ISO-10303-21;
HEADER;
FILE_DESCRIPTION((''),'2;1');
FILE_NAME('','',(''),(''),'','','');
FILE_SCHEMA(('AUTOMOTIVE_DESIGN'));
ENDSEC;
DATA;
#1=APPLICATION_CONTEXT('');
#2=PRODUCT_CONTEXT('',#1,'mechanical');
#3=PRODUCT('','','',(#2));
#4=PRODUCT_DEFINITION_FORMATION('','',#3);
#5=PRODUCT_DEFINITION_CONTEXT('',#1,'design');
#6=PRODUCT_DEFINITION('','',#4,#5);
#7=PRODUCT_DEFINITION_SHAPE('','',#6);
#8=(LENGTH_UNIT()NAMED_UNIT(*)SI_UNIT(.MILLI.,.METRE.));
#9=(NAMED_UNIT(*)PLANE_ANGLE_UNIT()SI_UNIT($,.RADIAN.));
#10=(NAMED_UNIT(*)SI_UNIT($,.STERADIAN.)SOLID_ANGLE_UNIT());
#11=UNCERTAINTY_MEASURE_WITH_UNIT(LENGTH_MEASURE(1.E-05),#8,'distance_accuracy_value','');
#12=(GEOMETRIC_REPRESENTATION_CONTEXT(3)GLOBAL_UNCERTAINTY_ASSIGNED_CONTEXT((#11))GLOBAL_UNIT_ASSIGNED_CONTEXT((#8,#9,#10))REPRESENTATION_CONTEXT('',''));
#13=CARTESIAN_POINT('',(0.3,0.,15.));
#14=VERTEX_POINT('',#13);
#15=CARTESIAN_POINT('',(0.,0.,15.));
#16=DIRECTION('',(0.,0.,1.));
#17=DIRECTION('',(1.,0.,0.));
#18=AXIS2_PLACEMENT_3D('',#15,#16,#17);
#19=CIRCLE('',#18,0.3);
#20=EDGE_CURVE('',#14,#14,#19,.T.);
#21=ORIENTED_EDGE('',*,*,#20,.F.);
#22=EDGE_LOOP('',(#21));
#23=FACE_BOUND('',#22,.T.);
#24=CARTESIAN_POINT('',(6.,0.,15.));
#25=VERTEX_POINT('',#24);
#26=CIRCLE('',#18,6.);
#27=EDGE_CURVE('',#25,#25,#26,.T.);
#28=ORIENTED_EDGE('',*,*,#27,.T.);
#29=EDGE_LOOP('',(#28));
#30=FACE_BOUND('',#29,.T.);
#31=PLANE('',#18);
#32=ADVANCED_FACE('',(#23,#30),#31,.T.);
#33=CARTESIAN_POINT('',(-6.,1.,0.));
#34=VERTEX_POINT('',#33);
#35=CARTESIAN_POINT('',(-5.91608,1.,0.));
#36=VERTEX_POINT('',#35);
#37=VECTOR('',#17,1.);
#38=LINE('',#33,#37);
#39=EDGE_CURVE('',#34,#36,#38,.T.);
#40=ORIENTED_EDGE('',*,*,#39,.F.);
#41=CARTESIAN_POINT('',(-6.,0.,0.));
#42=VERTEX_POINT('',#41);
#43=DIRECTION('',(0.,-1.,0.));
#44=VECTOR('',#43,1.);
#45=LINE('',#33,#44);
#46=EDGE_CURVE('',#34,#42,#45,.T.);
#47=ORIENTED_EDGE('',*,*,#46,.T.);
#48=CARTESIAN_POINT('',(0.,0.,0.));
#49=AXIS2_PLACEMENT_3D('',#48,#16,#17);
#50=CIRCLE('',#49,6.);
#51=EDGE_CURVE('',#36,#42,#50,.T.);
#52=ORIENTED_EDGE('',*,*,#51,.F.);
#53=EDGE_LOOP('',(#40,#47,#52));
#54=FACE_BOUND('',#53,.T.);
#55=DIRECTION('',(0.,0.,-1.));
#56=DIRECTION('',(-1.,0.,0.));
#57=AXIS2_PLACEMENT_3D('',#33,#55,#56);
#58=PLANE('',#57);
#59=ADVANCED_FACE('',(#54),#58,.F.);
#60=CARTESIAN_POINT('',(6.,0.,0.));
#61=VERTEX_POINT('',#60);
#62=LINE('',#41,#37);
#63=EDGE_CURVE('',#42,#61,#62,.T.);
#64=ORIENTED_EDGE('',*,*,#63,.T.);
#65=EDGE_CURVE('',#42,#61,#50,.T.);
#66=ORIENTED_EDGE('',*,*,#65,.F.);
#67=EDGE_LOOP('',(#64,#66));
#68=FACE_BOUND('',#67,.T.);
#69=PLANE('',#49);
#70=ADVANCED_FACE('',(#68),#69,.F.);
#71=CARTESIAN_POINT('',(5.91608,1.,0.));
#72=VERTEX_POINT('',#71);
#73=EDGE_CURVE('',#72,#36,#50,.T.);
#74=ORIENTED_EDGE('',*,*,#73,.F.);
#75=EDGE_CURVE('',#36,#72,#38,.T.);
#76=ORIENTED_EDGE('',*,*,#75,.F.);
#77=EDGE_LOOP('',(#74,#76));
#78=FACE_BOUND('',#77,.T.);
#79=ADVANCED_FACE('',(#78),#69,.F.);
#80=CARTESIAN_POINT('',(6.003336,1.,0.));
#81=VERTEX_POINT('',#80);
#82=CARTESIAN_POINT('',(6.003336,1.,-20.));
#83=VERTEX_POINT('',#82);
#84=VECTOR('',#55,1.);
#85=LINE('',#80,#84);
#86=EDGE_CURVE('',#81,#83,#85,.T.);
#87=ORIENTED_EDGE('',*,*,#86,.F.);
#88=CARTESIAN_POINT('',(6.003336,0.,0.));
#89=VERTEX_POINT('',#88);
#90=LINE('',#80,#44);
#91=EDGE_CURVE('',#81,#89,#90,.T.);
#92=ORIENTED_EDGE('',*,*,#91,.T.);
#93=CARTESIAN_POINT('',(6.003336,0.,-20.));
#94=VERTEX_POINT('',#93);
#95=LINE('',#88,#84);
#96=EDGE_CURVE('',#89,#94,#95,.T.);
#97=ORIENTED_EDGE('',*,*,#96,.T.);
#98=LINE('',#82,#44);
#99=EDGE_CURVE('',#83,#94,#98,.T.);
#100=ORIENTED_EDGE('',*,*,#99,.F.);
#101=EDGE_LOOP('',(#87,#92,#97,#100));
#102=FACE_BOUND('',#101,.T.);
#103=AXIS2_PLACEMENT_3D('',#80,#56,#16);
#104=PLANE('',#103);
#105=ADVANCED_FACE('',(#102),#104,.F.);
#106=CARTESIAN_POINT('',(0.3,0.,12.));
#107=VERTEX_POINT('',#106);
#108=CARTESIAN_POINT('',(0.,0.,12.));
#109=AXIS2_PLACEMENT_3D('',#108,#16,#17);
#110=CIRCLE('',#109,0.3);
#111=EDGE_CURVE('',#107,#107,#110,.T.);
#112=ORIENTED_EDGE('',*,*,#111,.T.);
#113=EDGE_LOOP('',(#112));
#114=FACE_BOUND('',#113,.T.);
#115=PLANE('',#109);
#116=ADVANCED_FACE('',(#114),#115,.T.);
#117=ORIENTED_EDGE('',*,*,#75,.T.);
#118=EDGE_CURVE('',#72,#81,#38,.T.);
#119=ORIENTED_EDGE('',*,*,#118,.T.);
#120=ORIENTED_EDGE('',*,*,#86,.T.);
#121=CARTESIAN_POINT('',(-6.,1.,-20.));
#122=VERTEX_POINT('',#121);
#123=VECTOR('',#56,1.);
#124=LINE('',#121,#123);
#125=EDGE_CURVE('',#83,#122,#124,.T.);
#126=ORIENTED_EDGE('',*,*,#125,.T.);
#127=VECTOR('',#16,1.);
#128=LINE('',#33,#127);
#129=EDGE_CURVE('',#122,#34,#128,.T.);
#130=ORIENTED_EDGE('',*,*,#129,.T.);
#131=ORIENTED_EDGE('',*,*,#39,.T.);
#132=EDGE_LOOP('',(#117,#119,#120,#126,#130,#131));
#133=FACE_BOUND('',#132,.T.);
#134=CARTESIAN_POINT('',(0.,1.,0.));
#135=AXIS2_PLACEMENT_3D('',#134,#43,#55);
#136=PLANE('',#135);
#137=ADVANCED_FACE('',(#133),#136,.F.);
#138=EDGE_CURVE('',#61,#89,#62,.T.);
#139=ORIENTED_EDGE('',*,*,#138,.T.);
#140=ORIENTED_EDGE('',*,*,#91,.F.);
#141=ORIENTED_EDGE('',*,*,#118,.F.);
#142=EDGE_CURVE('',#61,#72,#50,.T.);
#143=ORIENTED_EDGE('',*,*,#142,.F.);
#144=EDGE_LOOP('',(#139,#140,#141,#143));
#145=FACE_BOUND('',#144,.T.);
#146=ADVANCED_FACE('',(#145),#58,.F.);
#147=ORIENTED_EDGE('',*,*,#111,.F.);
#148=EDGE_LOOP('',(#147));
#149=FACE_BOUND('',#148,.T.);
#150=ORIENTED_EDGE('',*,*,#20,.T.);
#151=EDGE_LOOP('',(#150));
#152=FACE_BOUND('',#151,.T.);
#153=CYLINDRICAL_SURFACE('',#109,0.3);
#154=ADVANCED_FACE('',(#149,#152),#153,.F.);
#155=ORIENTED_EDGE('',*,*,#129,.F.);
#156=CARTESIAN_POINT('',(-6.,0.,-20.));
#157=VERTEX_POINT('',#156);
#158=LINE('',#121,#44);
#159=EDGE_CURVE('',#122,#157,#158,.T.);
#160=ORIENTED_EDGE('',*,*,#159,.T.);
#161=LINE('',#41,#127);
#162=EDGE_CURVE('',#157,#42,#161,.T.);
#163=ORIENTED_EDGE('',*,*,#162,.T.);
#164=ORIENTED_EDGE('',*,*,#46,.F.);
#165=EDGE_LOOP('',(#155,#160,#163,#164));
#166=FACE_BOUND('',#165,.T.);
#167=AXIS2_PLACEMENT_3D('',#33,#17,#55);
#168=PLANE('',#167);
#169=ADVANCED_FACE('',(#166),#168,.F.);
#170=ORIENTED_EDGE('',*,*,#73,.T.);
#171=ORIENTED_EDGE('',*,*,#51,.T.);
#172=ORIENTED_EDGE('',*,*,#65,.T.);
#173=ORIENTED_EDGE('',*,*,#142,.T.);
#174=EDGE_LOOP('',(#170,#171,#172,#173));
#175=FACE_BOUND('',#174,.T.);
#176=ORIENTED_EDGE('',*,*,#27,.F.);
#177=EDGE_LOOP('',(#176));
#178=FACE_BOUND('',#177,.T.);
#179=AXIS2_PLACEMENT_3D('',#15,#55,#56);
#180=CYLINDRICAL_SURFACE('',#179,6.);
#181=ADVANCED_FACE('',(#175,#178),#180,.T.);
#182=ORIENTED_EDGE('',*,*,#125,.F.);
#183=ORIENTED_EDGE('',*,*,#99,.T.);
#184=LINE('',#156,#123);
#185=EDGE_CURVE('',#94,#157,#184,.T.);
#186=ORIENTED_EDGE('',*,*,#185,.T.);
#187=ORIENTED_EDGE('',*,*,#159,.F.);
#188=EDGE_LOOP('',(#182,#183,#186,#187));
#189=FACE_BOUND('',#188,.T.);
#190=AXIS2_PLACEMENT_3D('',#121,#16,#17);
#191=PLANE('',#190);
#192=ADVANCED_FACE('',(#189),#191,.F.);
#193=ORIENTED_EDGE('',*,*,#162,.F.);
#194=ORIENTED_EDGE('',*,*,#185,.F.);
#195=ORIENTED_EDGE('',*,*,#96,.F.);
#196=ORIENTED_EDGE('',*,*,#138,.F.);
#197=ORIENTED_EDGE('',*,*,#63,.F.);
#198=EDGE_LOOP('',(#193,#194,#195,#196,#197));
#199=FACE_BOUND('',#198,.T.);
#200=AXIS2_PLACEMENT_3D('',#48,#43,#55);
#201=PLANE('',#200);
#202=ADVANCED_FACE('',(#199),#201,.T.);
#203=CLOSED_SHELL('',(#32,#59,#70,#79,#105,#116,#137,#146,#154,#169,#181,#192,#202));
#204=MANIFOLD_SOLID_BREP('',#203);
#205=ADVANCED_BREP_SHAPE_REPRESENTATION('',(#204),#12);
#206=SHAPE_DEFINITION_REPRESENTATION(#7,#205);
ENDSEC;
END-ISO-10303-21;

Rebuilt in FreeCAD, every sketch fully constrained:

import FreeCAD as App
import Part
import Sketcher
from FreeCAD import Vector


def add_polygon(sketch, points):
    """Adds a closed chain of lines whose ends are joined by coincident constraints."""
    first, n = sketch.GeometryCount, len(points)
    for a, b in zip(points, points[1:] + points[:1]):
        sketch.addGeometry(Part.LineSegment(App.Vector(*a, 0), App.Vector(*b, 0)), False)
    for i in range(n):
        sketch.addConstraint(Sketcher.Constraint("Coincident", first + i, 2, first + (i + 1) % n, 1))

doc = App.newDocument("Part")
params = doc.addObject("Spreadsheet::Sheet", "Params")
for row, (alias, value) in enumerate([
    ("sketch1_diameter", "12 mm"),
    ("pad1_length", "15 mm"),
    ("sketch2_diameter", "0.6 mm"),
    ("pocket1_length", "3 mm"),
    ("sketch3_height", "20 mm"),
    ("pad2_length", "1 mm"),
], start=1):
    params.set(f"A{row}", alias)
    params.set(f"B{row}", "=" + value)
    params.setAlias(f"B{row}", alias)

body = doc.addObject("PartDesign::Body", "Body")

# Sketch on XY plane
sketch1 = doc.addObject("Sketcher::SketchObject", "Sketch")
body.addObject(sketch1)
sketch1.AttachmentSupport = (doc.XY_Plane, [""])
sketch1.MapMode = "FlatFace"
sketch1.addGeometry(Part.Circle(Vector(0, 0, 0), Vector(0, 0, 1), 6), False)
sketch1.addConstraint([
    Sketcher.Constraint("Coincident", 0, 3, -1, 1),
    Sketcher.Constraint("Diameter", 0, 12.0),
])
sketch1.setExpression("Constraints[1]", "Params.sketch1_diameter")
pad1 = doc.addObject("PartDesign::Pad", "Pad")
body.addObject(pad1)
pad1.Profile = sketch1
pad1.setExpression("Length", "Params.pad1_length")

# Sketch on XY plane
sketch2 = doc.addObject("Sketcher::SketchObject", "Sketch001")
body.addObject(sketch2)
sketch2.AttachmentSupport = (doc.XY_Plane, [""])
sketch2.MapMode = "FlatFace"
sketch2.AttachmentOffset = App.Placement(Vector(0, 0, 15), App.Rotation())
sketch2.addGeometry(Part.Circle(Vector(0, 0, 0), Vector(0, 0, 1), 0.3), False)
sketch2.addConstraint([
    Sketcher.Constraint("Coincident", 0, 3, -1, 1),
    Sketcher.Constraint("Diameter", 0, 0.6),
])
sketch2.setExpression("Constraints[1]", "Params.sketch2_diameter")
pocket1 = doc.addObject("PartDesign::Pocket", "Pocket")
body.addObject(pocket1)
pocket1.Profile = sketch2
pocket1.setExpression("Length", "Params.pocket1_length")

# Sketch on XZ plane
sketch3 = doc.addObject("Sketcher::SketchObject", "Sketch002")
body.addObject(sketch3)
sketch3.AttachmentSupport = (doc.XZ_Plane, [""])
sketch3.MapMode = "FlatFace"
add_polygon(sketch3, [(-6, -20), (-6, 0), (6, 0), (6, -20)])  # lines 0-3
sketch3.addConstraint([
    Sketcher.Constraint("Vertical", 0),
    Sketcher.Constraint("Horizontal", 1),
    Sketcher.Constraint("Vertical", 2),
    Sketcher.Constraint("Horizontal", 3),
    Sketcher.Constraint("PointOnObject", 0, 2, -1),
    Sketcher.Constraint("DistanceY", 0, 1, 0, 2, 20.0),
    Sketcher.Constraint("DistanceX", 0, 2, -1, 1, 6.0),
    Sketcher.Constraint("DistanceX", 1, 1, 1, 2, 12.003336),
])
sketch3.setExpression("Constraints[9]", "Params.sketch3_height")
pad2 = doc.addObject("PartDesign::Pad", "Pad001")
body.addObject(pad2)
pad2.Profile = sketch3
pad2.setExpression("Length", "Params.pad2_length")
pad2.Reversed = True

doc.recompute()
